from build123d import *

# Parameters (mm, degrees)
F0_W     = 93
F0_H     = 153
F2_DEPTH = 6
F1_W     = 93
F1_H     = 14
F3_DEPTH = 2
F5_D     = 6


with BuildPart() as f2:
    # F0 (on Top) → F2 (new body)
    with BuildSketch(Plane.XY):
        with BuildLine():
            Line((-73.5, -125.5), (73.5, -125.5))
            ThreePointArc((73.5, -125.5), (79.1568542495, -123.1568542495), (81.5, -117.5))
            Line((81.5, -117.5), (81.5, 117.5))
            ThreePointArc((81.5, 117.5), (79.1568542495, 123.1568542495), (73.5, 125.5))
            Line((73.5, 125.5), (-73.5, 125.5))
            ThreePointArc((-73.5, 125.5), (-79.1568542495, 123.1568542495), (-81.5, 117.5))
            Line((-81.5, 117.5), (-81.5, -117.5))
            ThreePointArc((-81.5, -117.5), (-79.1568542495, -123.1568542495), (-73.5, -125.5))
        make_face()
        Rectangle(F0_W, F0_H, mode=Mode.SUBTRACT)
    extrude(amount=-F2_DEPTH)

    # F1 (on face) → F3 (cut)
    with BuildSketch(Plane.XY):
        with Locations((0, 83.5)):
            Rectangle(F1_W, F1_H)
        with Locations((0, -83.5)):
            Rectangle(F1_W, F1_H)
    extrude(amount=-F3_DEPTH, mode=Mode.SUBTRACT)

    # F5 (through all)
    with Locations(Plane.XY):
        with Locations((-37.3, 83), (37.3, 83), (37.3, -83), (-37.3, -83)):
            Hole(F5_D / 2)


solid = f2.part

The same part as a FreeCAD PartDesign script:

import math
import FreeCAD as App
import Part
import Sketcher


def add_polygon(sketch, points):
    """Adds a closed chain of lines whose ends are joined by coincident constraints."""
    first, n = sketch.GeometryCount, len(points)
    for a, b in zip(points, points[1:] + points[:1]):
        sketch.addGeometry(Part.LineSegment(App.Vector(*a, 0), App.Vector(*b, 0)), False)
    for i in range(n):
        sketch.addConstraint(Sketcher.Constraint("Coincident", first + i, 2, first + (i + 1) % n, 1))

doc = App.newDocument("Part")
body = doc.addObject("PartDesign::Body", "Body")

# Sketch on XY plane
sketch1 = body.newObject("Sketcher::SketchObject", "Sketch")
sketch1.AttachmentSupport = (doc.getObject("XY_Plane"), [""])
sketch1.MapMode = "FlatFace"
sketch1.addGeometry(Part.LineSegment(App.Vector(-74, -126, 0), App.Vector(74, -126, 0)), False)  # 0
sketch1.addGeometry(Part.ArcOfCircle(Part.Circle(App.Vector(74, -118, 0), App.Vector(0, 0, 1), 8), math.radians(-90), math.radians(0)), False)  # 1
sketch1.addGeometry(Part.LineSegment(App.Vector(82, -118, 0), App.Vector(82, 118, 0)), False)  # 2
sketch1.addGeometry(Part.ArcOfCircle(Part.Circle(App.Vector(74, 118, 0), App.Vector(0, 0, 1), 8), math.radians(0), math.radians(90)), False)  # 3
sketch1.addGeometry(Part.LineSegment(App.Vector(74, 126, 0), App.Vector(-74, 126, 0)), False)  # 4
sketch1.addGeometry(Part.ArcOfCircle(Part.Circle(App.Vector(-74, 118, 0), App.Vector(0, 0, 1), 8), math.radians(90), math.radians(180)), False)  # 5
sketch1.addGeometry(Part.LineSegment(App.Vector(-82, 118, 0), App.Vector(-82, -118, 0)), False)  # 6
sketch1.addGeometry(Part.ArcOfCircle(Part.Circle(App.Vector(-74, -118, 0), App.Vector(0, 0, 1), 8), math.radians(180), math.radians(270)), False)  # 7
add_polygon(sketch1, [(46, -76), (-46, -76), (-46, 76), (46, 76)])  # lines 8-11
sketch1.addConstraint([
    Sketcher.Constraint("Tangent", 0, 2, 1, 1),
    Sketcher.Constraint("Tangent", 1, 2, 2, 1),
    Sketcher.Constraint("Tangent", 2, 2, 3, 1),
    Sketcher.Constraint("Tangent", 3, 2, 4, 1),
    Sketcher.Constraint("Tangent", 4, 2, 5, 1),
    Sketcher.Constraint("Tangent", 5, 2, 6, 1),
    Sketcher.Constraint("Tangent", 6, 2, 7, 1),
    Sketcher.Constraint("Tangent", 7, 2, 0, 1),
    Sketcher.Constraint("Horizontal", 0),
    Sketcher.Constraint("Vertical", 2),
    Sketcher.Constraint("Horizontal", 4),
    Sketcher.Constraint("Vertical", 6),
    Sketcher.Constraint("Horizontal", 8),
    Sketcher.Constraint("Vertical", 9),
    Sketcher.Constraint("Horizontal", 10),
    Sketcher.Constraint("Vertical", 11),
    Sketcher.Constraint("Equal", 1, 3),
    Sketcher.Constraint("Equal", 3, 5),
    Sketcher.Constraint("Equal", 5, 7),
    Sketcher.Constraint("Symmetric", 1, 3, 5, 3, -1, 1),
    Sketcher.Constraint("Symmetric", 8, 2, 10, 2, -1, 1),
    Sketcher.Constraint("Radius", 1, 8.0),
    Sketcher.Constraint("DistanceX", 0, 1, 0, 2, 147.0),
    Sketcher.Constraint("DistanceX", 8, 2, 8, 1, 93.0),
    Sketcher.Constraint("DistanceY", 2, 1, 2, 2, 235.0),
    Sketcher.Constraint("DistanceY", 9, 1, 9, 2, 153.0),
])
pad1 = body.newObject("PartDesign::Pad", "Pad")
pad1.Profile = sketch1
pad1.Length = 6
pad1.Reversed = True

# Sketch on XY plane
sketch2 = body.newObject("Sketcher::SketchObject", "Sketch001")
sketch2.AttachmentSupport = (doc.getObject("XY_Plane"), [""])
sketch2.MapMode = "FlatFace"
add_polygon(sketch2, [(-46, 90), (-46, 76), (46, 76), (46, 90)])  # lines 0-3
add_polygon(sketch2, [(-46, -76), (-46, -90), (46, -90), (46, -76)])  # lines 4-7
sketch2.addConstraint([
    Sketcher.Constraint("Vertical", 0),
    Sketcher.Constraint("Horizontal", 1),
    Sketcher.Constraint("Vertical", 2),
    Sketcher.Constraint("Horizontal", 3),
    Sketcher.Constraint("Vertical", 4),
    Sketcher.Constraint("Horizontal", 5),
    Sketcher.Constraint("Vertical", 6),
    Sketcher.Constraint("Horizontal", 7),
    Sketcher.Constraint("Symmetric", 2, 2, 4, 2, -1, 1),
    Sketcher.Constraint("Symmetric", 0, 2, 6, 2, -1, 1),
    Sketcher.Constraint("Vertical", 3, 2, 4, 2),
    Sketcher.Constraint("DistanceX", 1, 1, 1, 2, 93.0),
    Sketcher.Constraint("DistanceY", 0, 2, 0, 1, 14.0),
    Sketcher.Constraint("DistanceY", 4, 2, 0, 2, 167.0),
])
pocket1 = body.newObject("PartDesign::Pocket", "Pocket")
pocket1.Profile = sketch2
pocket1.Length = 2

# Sketch on XY plane
sketch3 = body.newObject("Sketcher::SketchObject", "Sketch002")
sketch3.AttachmentSupport = (doc.getObject("XY_Plane"), [""])
sketch3.MapMode = "FlatFace"
sketch3.addGeometry([
    Part.Circle(App.Vector(-37.3, 83, 0), App.Vector(0, 0, 1), 3),
    Part.Circle(App.Vector(37.3, 83, 0), App.Vector(0, 0, 1), 3),
    Part.Circle(App.Vector(37.3, -83, 0), App.Vector(0, 0, 1), 3),
    Part.Circle(App.Vector(-37.3, -83, 0), App.Vector(0, 0, 1), 3),
], False)
sketch3.addConstraint([
    Sketcher.Constraint("Equal", 0, 1),
    Sketcher.Constraint("Equal", 1, 2),
    Sketcher.Constraint("Equal", 2, 3),
    Sketcher.Constraint("Symmetric", 0, 3, 2, 3, -1, 1),
    Sketcher.Constraint("Symmetric", 1, 3, 3, 3, -1, 1),
    Sketcher.Constraint("Symmetric", 0, 3, 1, 3, -2),
    Sketcher.Constraint("Diameter", 0, 6.0),
    Sketcher.Constraint("DistanceY", -1, 1, 0, 3, 83.0),
    Sketcher.Constraint("DistanceX", 0, 3, -1, 1, 37.3),
])
doc.recompute()
hole = body.newObject("PartDesign::Hole", "Hole")
hole.Profile = sketch3
hole.ThreadType = "None"
hole.Diameter = 6
hole.DepthType = "ThroughAll"

doc.recompute()
